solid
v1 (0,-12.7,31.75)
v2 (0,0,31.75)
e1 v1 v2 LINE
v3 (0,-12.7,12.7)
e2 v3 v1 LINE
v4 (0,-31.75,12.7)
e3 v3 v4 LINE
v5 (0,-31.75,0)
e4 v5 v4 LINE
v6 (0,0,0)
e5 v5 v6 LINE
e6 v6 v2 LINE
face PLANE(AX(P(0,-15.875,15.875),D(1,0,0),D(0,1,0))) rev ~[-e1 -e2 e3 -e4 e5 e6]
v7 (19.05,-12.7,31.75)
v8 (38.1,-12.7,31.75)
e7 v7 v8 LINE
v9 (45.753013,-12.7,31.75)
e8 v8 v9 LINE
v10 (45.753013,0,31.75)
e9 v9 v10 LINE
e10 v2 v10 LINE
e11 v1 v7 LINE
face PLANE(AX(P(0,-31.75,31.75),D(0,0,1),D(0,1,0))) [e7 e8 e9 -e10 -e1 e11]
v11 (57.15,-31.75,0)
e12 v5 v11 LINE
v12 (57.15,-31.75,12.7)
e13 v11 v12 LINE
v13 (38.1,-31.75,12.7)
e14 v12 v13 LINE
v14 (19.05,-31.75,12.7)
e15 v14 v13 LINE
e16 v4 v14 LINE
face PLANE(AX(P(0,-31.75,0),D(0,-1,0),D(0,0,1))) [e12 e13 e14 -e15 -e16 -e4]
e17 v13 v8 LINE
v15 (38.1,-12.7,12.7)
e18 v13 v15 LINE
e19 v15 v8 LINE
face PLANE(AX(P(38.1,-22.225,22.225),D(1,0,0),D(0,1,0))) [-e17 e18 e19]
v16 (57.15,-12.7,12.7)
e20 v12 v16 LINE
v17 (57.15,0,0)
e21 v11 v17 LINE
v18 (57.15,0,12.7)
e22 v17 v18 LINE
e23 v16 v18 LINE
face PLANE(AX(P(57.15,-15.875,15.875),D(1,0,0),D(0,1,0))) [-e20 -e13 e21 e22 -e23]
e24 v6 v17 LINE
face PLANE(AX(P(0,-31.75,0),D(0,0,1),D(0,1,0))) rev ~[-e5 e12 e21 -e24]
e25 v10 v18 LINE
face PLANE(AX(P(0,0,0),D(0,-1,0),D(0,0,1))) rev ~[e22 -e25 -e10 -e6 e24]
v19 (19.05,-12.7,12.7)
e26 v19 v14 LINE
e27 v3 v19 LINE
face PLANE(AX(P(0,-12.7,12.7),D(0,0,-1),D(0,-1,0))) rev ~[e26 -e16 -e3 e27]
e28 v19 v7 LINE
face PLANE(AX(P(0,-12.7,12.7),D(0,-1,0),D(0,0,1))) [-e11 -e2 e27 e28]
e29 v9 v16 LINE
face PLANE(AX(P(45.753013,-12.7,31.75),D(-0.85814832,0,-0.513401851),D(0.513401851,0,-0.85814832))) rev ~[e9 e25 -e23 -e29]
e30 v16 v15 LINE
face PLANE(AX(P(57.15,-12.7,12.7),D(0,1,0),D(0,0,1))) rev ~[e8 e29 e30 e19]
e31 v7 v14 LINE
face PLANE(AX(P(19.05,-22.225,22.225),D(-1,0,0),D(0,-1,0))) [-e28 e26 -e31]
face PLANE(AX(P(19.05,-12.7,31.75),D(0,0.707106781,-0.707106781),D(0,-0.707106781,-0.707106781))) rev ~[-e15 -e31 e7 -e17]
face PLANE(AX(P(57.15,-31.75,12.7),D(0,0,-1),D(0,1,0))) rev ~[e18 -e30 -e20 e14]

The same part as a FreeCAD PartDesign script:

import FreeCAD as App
import Part
import Sketcher
Q = App.Units.Quantity


def add_polygon(sketch, points):
    """Adds a closed chain of lines whose ends are joined by coincident constraints."""
    first, n = sketch.GeometryCount, len(points)
    for a, b in zip(points, points[1:] + points[:1]):
        sketch.addGeometry(Part.LineSegment(App.Vector(*a, 0), App.Vector(*b, 0)), False)
    for i in range(n):
        sketch.addConstraint(Sketcher.Constraint("Coincident", first + i, 2, first + (i + 1) % n, 1))

doc = App.newDocument("Part")
body = doc.addObject("PartDesign::Body", "Body")

# Sketch on YZ plane
sketch1 = doc.addObject("Sketcher::SketchObject", "Sketch")
body.addObject(sketch1)
sketch1.AttachmentSupport = (doc.YZ_Plane, [""])
sketch1.MapMode = "FlatFace"
add_polygon(sketch1, [(-31.75, 31.75), (-31.75, 0), (0, 0), (0, 31.75)])  # lines 0-3
sketch1.addConstraint(Sketcher.Constraint("Vertical", 0))
sketch1.addConstraint(Sketcher.Constraint("Horizontal", 1))
sketch1.addConstraint(Sketcher.Constraint("Vertical", 2))
sketch1.addConstraint(Sketcher.Constraint("Horizontal", 3))
sketch1.addConstraint(Sketcher.Constraint("Coincident", 1, 2, -1, 1))
sketch1.addConstraint(Sketcher.Constraint("Equal", 3, 0))
sketch1.addConstraint(Sketcher.Constraint("DistanceX", 1, 1, 1, 2, Q("1.25 in")))
pad1 = doc.addObject("PartDesign::Pad", "Pad")
body.addObject(pad1)
pad1.Profile = sketch1
pad1.Length = Q("2.25 in")

# Sketch on YZ plane
sketch2 = doc.addObject("Sketcher::SketchObject", "Sketch001")
body.addObject(sketch2)
sketch2.AttachmentSupport = (doc.YZ_Plane, [""])
sketch2.MapMode = "FlatFace"
add_polygon(sketch2, [(-12.7, 31.75), (-12.7, 12.7), (-31.75, 12.7), (-31.75, 31.75)])  # lines 0-3
sketch2.addConstraint(Sketcher.Constraint("Vertical", 0))
sketch2.addConstraint(Sketcher.Constraint("Horizontal", 1))
sketch2.addConstraint(Sketcher.Constraint("Vertical", 2))
sketch2.addConstraint(Sketcher.Constraint("Horizontal", 3))
sketch2.addConstraint(Sketcher.Constraint("Equal", 3, 0))
sketch2.addConstraint(Sketcher.Constraint("DistanceX", 1, 2, 1, 1, Q("0.75 in")))
sketch2.addConstraint(Sketcher.Constraint("DistanceX", 0, 2, -1, 1, Q("0.5 in")))
sketch2.addConstraint(Sketcher.Constraint("DistanceY", -1, 1, 0, 2, Q("0.5 in")))
pocket1 = doc.addObject("PartDesign::Pocket", "Pocket")
body.addObject(pocket1)
pocket1.Profile = sketch2
pocket1.Length = Q("0.75 in")
pocket1.Reversed = True

# Sketch on YZ plane
sketch3 = doc.addObject("Sketcher::SketchObject", "Sketch002")
body.addObject(sketch3)
sketch3.AttachmentSupport = (doc.YZ_Plane, [""])
sketch3.MapMode = "FlatFace"
sketch3.AttachmentOffset = App.Placement(App.Vector(0, 0, 2.25 * 25.4), App.Rotation())
add_polygon(sketch3, [(-31.75, 31.75), (-31.75, 12.7), (-12.7, 12.7), (-12.7, 31.75)])  # lines 0-3
sketch3.addConstraint(Sketcher.Constraint("Vertical", 0))
sketch3.addConstraint(Sketcher.Constraint("Horizontal", 1))
sketch3.addConstraint(Sketcher.Constraint("Vertical", 2))
sketch3.addConstraint(Sketcher.Constraint("Horizontal", 3))
sketch3.addConstraint(Sketcher.Constraint("Equal", 3, 0))
sketch3.addConstraint(Sketcher.Constraint("DistanceX", 1, 1, 1, 2, Q("0.75 in")))
sketch3.addConstraint(Sketcher.Constraint("DistanceY", -1, 1, 0, 2, Q("0.5 in")))
sketch3.addConstraint(Sketcher.Constraint("DistanceX", 1, 2, -1, 1, Q("0.5 in")))
pocket2 = doc.addObject("PartDesign::Pocket", "Pocket001")
body.addObject(pocket2)
pocket2.Profile = sketch3
pocket2.Length = Q("0.75 in")

# Sketch on XZ plane
sketch4 = doc.addObject("Sketcher::SketchObject", "Sketch003")
body.addObject(sketch4)
sketch4.AttachmentSupport = (doc.XZ_Plane, [""])
sketch4.MapMode = "FlatFace"
sketch4.AttachmentOffset = App.Placement(App.Vector(0, 0, 0.5 * 25.4), App.Rotation())
add_polygon(sketch4, [(45.753013, 31.75), (57.15, 12.7), (57.15, 31.75)])  # lines 0-2
sketch4.addConstraint(Sketcher.Constraint("Vertical", 1))
sketch4.addConstraint(Sketcher.Constraint("Horizontal", 2))
sketch4.addConstraint(Sketcher.Constraint("DistanceY", 1, 1, 1, 2, Q("0.75 in")))
sketch4.addConstraint(Sketcher.Constraint("DistanceY", -1, 1, 0, 2, Q("0.5 in")))
sketch4.addConstraint(Sketcher.Constraint("DistanceX", -1, 1, 0, 2, Q("2.25 in")))
sketch4.addConstraint(Sketcher.Constraint("Distance", 0, Q("22.19896 mm")))
pocket3 = doc.addObject("PartDesign::Pocket", "Pocket002")
body.addObject(pocket3)
pocket3.Profile = sketch4
pocket3.Length = Q("1 in")

# Sketch on YZ plane
sketch5 = doc.addObject("Sketcher::SketchObject", "Sketch004")
body.addObject(sketch5)
sketch5.AttachmentSupport = (doc.YZ_Plane, [""])
sketch5.MapMode = "FlatFace"
sketch5.AttachmentOffset = App.Placement(App.Vector(0, 0, 0.75 * 25.4), App.Rotation())
add_polygon(sketch5, [(-12.7, 31.75), (-31.75, 12.7), (-31.75, 31.75)])  # lines 0-2
sketch5.addConstraint(Sketcher.Constraint("Vertical", 1))
sketch5.addConstraint(Sketcher.Constraint("Horizontal", 2))
sketch5.addConstraint(Sketcher.Constraint("Equal", 2, 1))
sketch5.addConstraint(Sketcher.Constraint("DistanceX", 2, 1, 2, 2, Q("0.75 in")))
sketch5.addConstraint(Sketcher.Constraint("DistanceY", -1, 1, 0, 2, Q("0.5 in")))
sketch5.addConstraint(Sketcher.Constraint("DistanceX", 2, 2, -1, 1, Q("0.5 in")))
pocket4 = doc.addObject("PartDesign::Pocket", "Pocket003")
body.addObject(pocket4)
pocket4.Profile = sketch5
pocket4.Length = Q("1 in")
pocket4.Reversed = True

doc.recompute()
